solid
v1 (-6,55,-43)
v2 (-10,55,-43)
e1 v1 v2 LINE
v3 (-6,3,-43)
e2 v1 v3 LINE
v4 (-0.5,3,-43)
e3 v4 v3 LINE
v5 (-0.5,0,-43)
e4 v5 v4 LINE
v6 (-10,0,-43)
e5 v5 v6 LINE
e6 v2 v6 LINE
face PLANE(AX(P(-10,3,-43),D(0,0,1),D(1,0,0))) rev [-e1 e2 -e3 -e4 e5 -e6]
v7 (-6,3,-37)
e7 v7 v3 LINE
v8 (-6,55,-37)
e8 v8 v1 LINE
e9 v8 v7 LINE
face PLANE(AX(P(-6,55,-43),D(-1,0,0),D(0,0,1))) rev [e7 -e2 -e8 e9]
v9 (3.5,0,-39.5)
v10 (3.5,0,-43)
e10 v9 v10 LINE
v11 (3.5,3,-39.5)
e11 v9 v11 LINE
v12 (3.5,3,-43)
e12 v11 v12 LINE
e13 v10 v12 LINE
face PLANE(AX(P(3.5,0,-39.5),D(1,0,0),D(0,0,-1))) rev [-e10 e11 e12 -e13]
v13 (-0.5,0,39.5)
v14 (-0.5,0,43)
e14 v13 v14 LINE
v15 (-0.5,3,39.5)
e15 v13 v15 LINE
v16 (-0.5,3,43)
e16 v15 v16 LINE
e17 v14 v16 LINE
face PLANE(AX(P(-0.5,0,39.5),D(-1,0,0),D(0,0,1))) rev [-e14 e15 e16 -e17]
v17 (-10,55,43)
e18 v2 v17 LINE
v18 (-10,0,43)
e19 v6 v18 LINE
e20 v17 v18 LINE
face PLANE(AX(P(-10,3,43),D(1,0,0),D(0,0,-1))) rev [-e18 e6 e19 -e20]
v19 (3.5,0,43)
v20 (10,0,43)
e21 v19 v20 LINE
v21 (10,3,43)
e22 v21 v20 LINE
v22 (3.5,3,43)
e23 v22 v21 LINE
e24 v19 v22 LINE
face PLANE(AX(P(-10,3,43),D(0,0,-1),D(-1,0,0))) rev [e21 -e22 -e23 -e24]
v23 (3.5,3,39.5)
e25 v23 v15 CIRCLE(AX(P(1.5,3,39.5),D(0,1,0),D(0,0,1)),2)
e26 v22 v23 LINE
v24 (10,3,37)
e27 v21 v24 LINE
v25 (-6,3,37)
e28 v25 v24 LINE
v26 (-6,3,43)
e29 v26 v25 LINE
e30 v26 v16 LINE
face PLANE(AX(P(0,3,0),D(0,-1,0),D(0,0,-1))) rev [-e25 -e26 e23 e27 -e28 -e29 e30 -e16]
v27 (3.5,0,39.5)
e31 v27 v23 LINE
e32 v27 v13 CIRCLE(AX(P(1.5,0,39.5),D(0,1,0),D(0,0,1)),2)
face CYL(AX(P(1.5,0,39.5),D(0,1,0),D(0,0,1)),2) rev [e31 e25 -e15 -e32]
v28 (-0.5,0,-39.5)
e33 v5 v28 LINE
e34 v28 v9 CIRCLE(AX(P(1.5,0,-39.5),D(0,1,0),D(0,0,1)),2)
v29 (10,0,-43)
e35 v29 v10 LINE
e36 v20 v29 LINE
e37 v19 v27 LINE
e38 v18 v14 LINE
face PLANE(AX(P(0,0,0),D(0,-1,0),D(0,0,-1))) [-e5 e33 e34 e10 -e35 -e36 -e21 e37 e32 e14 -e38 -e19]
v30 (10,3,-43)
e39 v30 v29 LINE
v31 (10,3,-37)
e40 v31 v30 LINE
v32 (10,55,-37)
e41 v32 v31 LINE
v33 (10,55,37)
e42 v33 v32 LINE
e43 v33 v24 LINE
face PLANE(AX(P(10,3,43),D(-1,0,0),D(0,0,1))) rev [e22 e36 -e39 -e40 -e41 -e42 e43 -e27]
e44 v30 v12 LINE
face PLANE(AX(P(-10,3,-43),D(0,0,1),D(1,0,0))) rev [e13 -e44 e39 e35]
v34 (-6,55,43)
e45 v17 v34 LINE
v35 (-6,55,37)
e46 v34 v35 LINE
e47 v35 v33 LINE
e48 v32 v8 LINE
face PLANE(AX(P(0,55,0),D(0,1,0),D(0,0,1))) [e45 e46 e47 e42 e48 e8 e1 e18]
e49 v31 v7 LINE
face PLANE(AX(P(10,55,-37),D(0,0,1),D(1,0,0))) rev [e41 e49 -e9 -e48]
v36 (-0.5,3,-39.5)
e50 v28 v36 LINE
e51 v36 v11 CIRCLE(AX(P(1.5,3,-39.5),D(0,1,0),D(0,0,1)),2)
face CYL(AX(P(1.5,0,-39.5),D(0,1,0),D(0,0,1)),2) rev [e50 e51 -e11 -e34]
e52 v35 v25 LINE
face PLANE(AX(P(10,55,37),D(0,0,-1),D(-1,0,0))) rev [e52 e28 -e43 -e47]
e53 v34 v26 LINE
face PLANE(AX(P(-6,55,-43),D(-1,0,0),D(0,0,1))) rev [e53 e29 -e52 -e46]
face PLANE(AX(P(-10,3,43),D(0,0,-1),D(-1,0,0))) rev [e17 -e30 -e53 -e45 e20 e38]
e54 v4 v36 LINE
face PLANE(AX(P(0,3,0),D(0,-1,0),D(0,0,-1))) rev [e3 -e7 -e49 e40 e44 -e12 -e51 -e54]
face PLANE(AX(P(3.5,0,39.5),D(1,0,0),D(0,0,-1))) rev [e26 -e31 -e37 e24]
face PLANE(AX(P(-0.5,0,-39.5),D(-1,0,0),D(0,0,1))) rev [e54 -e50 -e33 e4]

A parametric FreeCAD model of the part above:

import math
import FreeCAD as App
import Part
import Sketcher

V = App.Vector

doc = App.newDocument("Part")
body = doc.addObject("PartDesign::Body", "Body")

# Sketch on XZ plane
sketch1 = doc.addObject("Sketcher::SketchObject", "Sketch")
body.addObject(sketch1)
sketch1.AttachmentSupport = (doc.XZ_Plane, [""])
sketch1.MapMode = "FlatFace"
sketch1.addGeometry([
    Part.LineSegment(V(-10, -43, 0), V(-10, 43, 0)),
    Part.LineSegment(V(-10, 43, 0), V(10, 43, 0)),
    Part.LineSegment(V(10, 43, 0), V(10, -43, 0)),
    Part.LineSegment(V(10, -43, 0), V(-10, -43, 0)),
], False)
sketch1.addConstraint([
    Sketcher.Constraint("Coincident", 0, 2, 1, 1),
    Sketcher.Constraint("Coincident", 1, 2, 2, 1),
    Sketcher.Constraint("Coincident", 2, 2, 3, 1),
    Sketcher.Constraint("Coincident", 3, 2, 0, 1),
    Sketcher.Constraint("Vertical", 0),
    Sketcher.Constraint("Horizontal", 1),
    Sketcher.Constraint("Vertical", 2),
    Sketcher.Constraint("Horizontal", 3),
    Sketcher.Constraint("Symmetric", 0, 2, 2, 2, -1, 1),
    Sketcher.Constraint("DistanceX", 1, 1, 1, 2, 20.0),
    Sketcher.Constraint("DistanceY", 0, 1, 0, 2, 86.0),
])
pad1 = doc.addObject("PartDesign::Pad", "Pad")
body.addObject(pad1)
pad1.Profile = sketch1
pad1.Length = 3
pad1.Reversed = True

# Sketch on XZ plane
sketch2 = doc.addObject("Sketcher::SketchObject", "Sketch001")
body.addObject(sketch2)
sketch2.AttachmentSupport = (doc.XZ_Plane, [""])
sketch2.MapMode = "FlatFace"
sketch2.AttachmentOffset = App.Placement(V(0, 0, -3), App.Rotation())
sketch2.addGeometry([
    Part.LineSegment(V(-0.5, -43, 0), V(-0.5, -39.5, 0)),  # 0
    Part.ArcOfCircle(Part.Circle(V(1.5, -39.5, 0), V(0, 0, 1), 2), math.radians(0), math.radians(180)),  # 1
    Part.LineSegment(V(3.5, -39.5, 0), V(3.5, -43, 0)),  # 2
    Part.LineSegment(V(3.5, -43, 0), V(-0.5, -43, 0)),  # 3
    Part.LineSegment(V(-0.5, 39.5, 0), V(-0.5, 43, 0)),  # 4
    Part.LineSegment(V(-0.5, 43, 0), V(3.5, 43, 0)),  # 5
    Part.LineSegment(V(3.5, 43, 0), V(3.5, 39.5, 0)),  # 6
    Part.ArcOfCircle(Part.Circle(V(1.5, 39.5, 0), V(0, 0, 1), 2), math.radians(180), math.radians(360)),  # 7
], False)
sketch2.addConstraint([
    Sketcher.Constraint("Tangent", 0, 2, 1, 2),
    Sketcher.Constraint("Tangent", 1, 1, 2, 1),
    Sketcher.Constraint("Coincident", 2, 2, 3, 1),
    Sketcher.Constraint("Coincident", 3, 2, 0, 1),
    Sketcher.Constraint("Coincident", 4, 2, 5, 1),
    Sketcher.Constraint("Coincident", 5, 2, 6, 1),
    Sketcher.Constraint("Tangent", 6, 2, 7, 2),
    Sketcher.Constraint("Tangent", 7, 1, 4, 1),
    Sketcher.Constraint("Vertical", 0),
    Sketcher.Constraint("Vertical", 2),
    Sketcher.Constraint("Horizontal", 3),
    Sketcher.Constraint("Vertical", 4),
    Sketcher.Constraint("Horizontal", 5),
    Sketcher.Constraint("Vertical", 6),
    Sketcher.Constraint("Equal", 1, 7),
    Sketcher.Constraint("Symmetric", 1, 3, 7, 3, -1),
    Sketcher.Constraint("Equal", 2, 4),
    Sketcher.Constraint("Radius", 1, 2.0),
    Sketcher.Constraint("DistanceY", 0, 1, 0, 2, 3.5),
    Sketcher.Constraint("DistanceY", 2, 2, -1, 1, 43.0),
    Sketcher.Constraint("DistanceX", -1, 1, 1, 3, 1.5),
])
pocket1 = doc.addObject("PartDesign::Pocket", "Pocket")
body.addObject(pocket1)
pocket1.Profile = sketch2
pocket1.Type = "ThroughAll"
pocket1.Reversed = True

# Sketch on XZ plane
sketch3 = doc.addObject("Sketcher::SketchObject", "Sketch002")
body.addObject(sketch3)
sketch3.AttachmentSupport = (doc.XZ_Plane, [""])
sketch3.MapMode = "FlatFace"
sketch3.AttachmentOffset = App.Placement(V(0, 0, -3), App.Rotation())
sketch3.addGeometry([
    Part.LineSegment(V(-10, -43, 0), V(-10, 43, 0)),
    Part.LineSegment(V(-10, 43, 0), V(-6, 43, 0)),
    Part.LineSegment(V(-6, 43, 0), V(-6, -43, 0)),
    Part.LineSegment(V(-6, -43, 0), V(-10, -43, 0)),
], False)
sketch3.addConstraint([
    Sketcher.Constraint("Coincident", 0, 2, 1, 1),
    Sketcher.Constraint("Coincident", 1, 2, 2, 1),
    Sketcher.Constraint("Coincident", 2, 2, 3, 1),
    Sketcher.Constraint("Coincident", 3, 2, 0, 1),
    Sketcher.Constraint("Vertical", 0),
    Sketcher.Constraint("Horizontal", 1),
    Sketcher.Constraint("Vertical", 2),
    Sketcher.Constraint("Horizontal", 3),
    Sketcher.Constraint("DistanceX", 1, 1, 1, 2, 4.0),
    Sketcher.Constraint("DistanceY", 0, 1, 0, 2, 86.0),
    Sketcher.Constraint("DistanceX", 0, 2, -1, 1, 10.0),
    Sketcher.Constraint("DistanceY", -1, 1, 0, 2, 43.0),
])
pad2 = doc.addObject("PartDesign::Pad", "Pad001")
body.addObject(pad2)
pad2.Profile = sketch3
pad2.Length = 52
pad2.Reversed = True

# Sketch on XZ plane
sketch4 = doc.addObject("Sketcher::SketchObject", "Sketch003")
body.addObject(sketch4)
sketch4.AttachmentSupport = (doc.XZ_Plane, [""])
sketch4.MapMode = "FlatFace"
sketch4.AttachmentOffset = App.Placement(V(0, 0, -3), App.Rotation())
sketch4.addGeometry([
    Part.LineSegment(V(-6, -37, 0), V(-6, 37, 0)),
    Part.LineSegment(V(-6, 37, 0), V(10, 37, 0)),
    Part.LineSegment(V(10, 37, 0), V(10, -37, 0)),
    Part.LineSegment(V(10, -37, 0), V(-6, -37, 0)),
], False)
sketch4.addConstraint([
    Sketcher.Constraint("Coincident", 0, 2, 1, 1),
    Sketcher.Constraint("Coincident", 1, 2, 2, 1),
    Sketcher.Constraint("Coincident", 2, 2, 3, 1),
    Sketcher.Constraint("Coincident", 3, 2, 0, 1),
    Sketcher.Constraint("Vertical", 0),
    Sketcher.Constraint("Horizontal", 1),
    Sketcher.Constraint("Vertical", 2),
    Sketcher.Constraint("Horizontal", 3),
    Sketcher.Constraint("DistanceX", 1, 1, 1, 2, 16.0),
    Sketcher.Constraint("DistanceY", 0, 1, 0, 2, 74.0),
    Sketcher.Constraint("DistanceX", 0, 2, -1, 1, 6.0),
    Sketcher.Constraint("DistanceY", -1, 1, 0, 2, 37.0),
])
pad3 = doc.addObject("PartDesign::Pad", "Pad002")
body.addObject(pad3)
pad3.Profile = sketch4
pad3.Length = 52
pad3.Reversed = True

doc.recompute()
